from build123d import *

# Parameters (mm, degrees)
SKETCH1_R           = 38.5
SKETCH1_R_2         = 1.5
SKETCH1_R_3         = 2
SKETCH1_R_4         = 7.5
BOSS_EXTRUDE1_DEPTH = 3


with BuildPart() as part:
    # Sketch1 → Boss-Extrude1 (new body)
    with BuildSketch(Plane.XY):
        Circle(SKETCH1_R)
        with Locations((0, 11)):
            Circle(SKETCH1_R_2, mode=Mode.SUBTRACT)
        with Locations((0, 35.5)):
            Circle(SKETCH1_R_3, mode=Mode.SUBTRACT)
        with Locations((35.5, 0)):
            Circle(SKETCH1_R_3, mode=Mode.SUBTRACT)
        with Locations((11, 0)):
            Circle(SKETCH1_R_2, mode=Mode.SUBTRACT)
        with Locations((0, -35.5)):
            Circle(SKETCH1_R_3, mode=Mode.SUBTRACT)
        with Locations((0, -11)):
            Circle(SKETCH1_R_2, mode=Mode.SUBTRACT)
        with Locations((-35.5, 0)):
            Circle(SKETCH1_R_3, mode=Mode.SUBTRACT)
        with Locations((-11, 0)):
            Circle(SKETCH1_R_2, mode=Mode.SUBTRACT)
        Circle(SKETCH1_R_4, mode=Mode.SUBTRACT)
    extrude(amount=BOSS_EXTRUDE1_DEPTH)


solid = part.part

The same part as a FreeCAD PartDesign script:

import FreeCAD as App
import Part
import Sketcher

V = App.Vector
Q = App.Units.Quantity

doc = App.newDocument("Part")
body = doc.addObject("PartDesign::Body", "Body")

# Sketch on XY plane
sketch1 = body.newObject("Sketcher::SketchObject", "Sketch")
sketch1.AttachmentSupport = (doc.getObject("XY_Plane"), [""])
sketch1.MapMode = "FlatFace"
sketch1.addGeometry(Part.Circle(V(0, 0, 0), V(0, 0, 1), 38.5), False)
sketch1.addGeometry(Part.Circle(V(0, -35.5, 0), V(0, 0, 1), 2), False)
sketch1.addGeometry(Part.Circle(V(0, -11, 0), V(0, 0, 1), 1.5), False)
sketch1.addGeometry(Part.Circle(V(-35.5, 0, 0), V(0, 0, 1), 2), False)
sketch1.addGeometry(Part.Circle(V(-11, 0, 0), V(0, 0, 1), 1.5), False)
sketch1.addGeometry(Part.Circle(V(0, 0, 0), V(0, 0, 1), 7.5), False)
sketch1.addGeometry(Part.Circle(V(11, 0, 0), V(0, 0, 1), 1.5), False)
sketch1.addGeometry(Part.Circle(V(0, 11, 0), V(0, 0, 1), 1.5), False)
sketch1.addGeometry(Part.Circle(V(35.5, 0, 0), V(0, 0, 1), 2), False)
sketch1.addGeometry(Part.Circle(V(0, 35.5, 0), V(0, 0, 1), 2), False)
sketch1.addConstraint(Sketcher.Constraint("Coincident", 0, 3, -1, 1))
sketch1.addConstraint(Sketcher.Constraint("Coincident", 5, 3, -1, 1))
sketch1.addConstraint(Sketcher.Constraint("Equal", 1, 3))
sketch1.addConstraint(Sketcher.Constraint("Equal", 2, 4))
sketch1.addConstraint(Sketcher.Constraint("Equal", 4, 6))
sketch1.addConstraint(Sketcher.Constraint("Equal", 6, 7))
sketch1.addConstraint(Sketcher.Constraint("Equal", 3, 8))
sketch1.addConstraint(Sketcher.Constraint("Equal", 8, 9))
sketch1.addConstraint(Sketcher.Constraint("Symmetric", 4, 3, 6, 3, -1, 1))
sketch1.addConstraint(Sketcher.Constraint("Symmetric", 2, 3, 7, 3, -1, 1))
sketch1.addConstraint(Sketcher.Constraint("Symmetric", 3, 3, 8, 3, -1, 1))
sketch1.addConstraint(Sketcher.Constraint("Symmetric", 1, 3, 9, 3, -1, 1))
sketch1.addConstraint(Sketcher.Constraint("PointOnObject", 1, 3, -2))
sketch1.addConstraint(Sketcher.Constraint("PointOnObject", 2, 3, -2))
sketch1.addConstraint(Sketcher.Constraint("PointOnObject", 3, 3, -1))
sketch1.addConstraint(Sketcher.Constraint("PointOnObject", 4, 3, -1))
sketch1.addConstraint(Sketcher.Constraint("Diameter", 0, Q("77 mm")))
sketch1.addConstraint(Sketcher.Constraint("Diameter", 1, Q("4 mm")))
sketch1.addConstraint(Sketcher.Constraint("Diameter", 2, Q("3 mm")))
sketch1.addConstraint(Sketcher.Constraint("Diameter", 5, Q("15 mm")))
sketch1.addConstraint(Sketcher.Constraint("DistanceY", 2, 3, -1, 1, Q("11 mm")))
sketch1.addConstraint(Sketcher.Constraint("DistanceX", 4, 3, -1, 1, Q("11 mm")))
sketch1.addConstraint(Sketcher.Constraint("DistanceY", 1, 3, -1, 1, Q("35.5 mm")))
sketch1.addConstraint(Sketcher.Constraint("DistanceX", 3, 3, -1, 1, Q("35.5 mm")))
pad1 = body.newObject("PartDesign::Pad", "Pad")
pad1.Profile = sketch1
pad1.Length = 3

doc.recompute()
